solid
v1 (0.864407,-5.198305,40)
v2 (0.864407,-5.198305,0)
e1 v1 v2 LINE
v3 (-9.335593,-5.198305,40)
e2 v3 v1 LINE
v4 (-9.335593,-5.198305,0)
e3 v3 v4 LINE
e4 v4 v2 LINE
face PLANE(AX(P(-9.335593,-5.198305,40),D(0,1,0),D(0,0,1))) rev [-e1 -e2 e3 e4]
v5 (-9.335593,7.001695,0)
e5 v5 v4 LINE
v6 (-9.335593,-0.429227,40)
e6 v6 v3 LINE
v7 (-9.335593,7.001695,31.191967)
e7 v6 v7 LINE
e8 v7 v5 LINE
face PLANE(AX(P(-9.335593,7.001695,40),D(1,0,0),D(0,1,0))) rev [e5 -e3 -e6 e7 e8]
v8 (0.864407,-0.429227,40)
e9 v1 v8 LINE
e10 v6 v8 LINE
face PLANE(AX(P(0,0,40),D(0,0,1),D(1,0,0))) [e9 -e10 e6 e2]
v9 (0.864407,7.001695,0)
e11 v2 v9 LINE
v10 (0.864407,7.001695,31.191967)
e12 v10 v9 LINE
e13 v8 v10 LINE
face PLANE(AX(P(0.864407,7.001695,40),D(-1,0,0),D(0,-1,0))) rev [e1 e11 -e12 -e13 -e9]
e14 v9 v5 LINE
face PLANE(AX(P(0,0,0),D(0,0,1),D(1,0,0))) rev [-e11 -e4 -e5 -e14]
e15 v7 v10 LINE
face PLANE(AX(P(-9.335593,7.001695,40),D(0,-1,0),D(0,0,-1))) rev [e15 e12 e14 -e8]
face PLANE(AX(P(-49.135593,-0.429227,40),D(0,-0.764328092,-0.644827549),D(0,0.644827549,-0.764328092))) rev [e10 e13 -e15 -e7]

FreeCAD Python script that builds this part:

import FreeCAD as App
import Part
import Sketcher
Q = App.Units.Quantity

doc = App.newDocument("Part")
body = doc.addObject("PartDesign::Body", "Body")

sketch1 = body.newObject("Sketcher::SketchObject", "Sketch")
sketch1.AttachmentSupport = (doc.getObject("XY_Plane"), [""])
sketch1.MapMode = "FlatFace"
sketch1.addGeometry(Part.LineSegment(App.Vector(-9, 7, 0), App.Vector(-9, -5, 0)), False)
sketch1.addGeometry(Part.LineSegment(App.Vector(-9, -5, 0), App.Vector(1, -5, 0)), False)
sketch1.addGeometry(Part.LineSegment(App.Vector(1, -5, 0), App.Vector(1, 7, 0)), False)
sketch1.addGeometry(Part.LineSegment(App.Vector(1, 7, 0), App.Vector(-9, 7, 0)), False)
sketch1.addConstraint(Sketcher.Constraint("Coincident", 0, 2, 1, 1))
sketch1.addConstraint(Sketcher.Constraint("Coincident", 1, 2, 2, 1))
sketch1.addConstraint(Sketcher.Constraint("Coincident", 2, 2, 3, 1))
sketch1.addConstraint(Sketcher.Constraint("Coincident", 3, 2, 0, 1))
sketch1.addConstraint(Sketcher.Constraint("Vertical", 0))
sketch1.addConstraint(Sketcher.Constraint("Horizontal", 1))
sketch1.addConstraint(Sketcher.Constraint("Vertical", 2))
sketch1.addConstraint(Sketcher.Constraint("Horizontal", 3))
sketch1.addConstraint(Sketcher.Constraint("DistanceX", 1, 1, 1, 2, Q("10.2 mm")))
sketch1.addConstraint(Sketcher.Constraint("DistanceY", 0, 2, 0, 1, Q("12.2 mm")))
sketch1.addConstraint(Sketcher.Constraint("DistanceX", 0, 2, -1, 1, Q("9.335593 mm")))
sketch1.addConstraint(Sketcher.Constraint("DistanceY", 0, 2, -1, 1, Q("5.198305 mm")))
pad1 = body.newObject("PartDesign::Pad", "Pad")
pad1.Profile = sketch1
pad1.Length = 40

sketch2 = body.newObject("Sketcher::SketchObject", "Sketch001")
sketch2.AttachmentSupport = (doc.getObject("YZ_Plane"), [""])
sketch2.MapMode = "FlatFace"
sketch2.AttachmentOffset = App.Placement(App.Vector(0, 0, 0.864407), App.Rotation())
sketch2.addGeometry(Part.LineSegment(App.Vector(0, 40, 0), App.Vector(7, 31, 0)), False)
sketch2.addGeometry(Part.LineSegment(App.Vector(7, 31, 0), App.Vector(7, 40, 0)), False)
sketch2.addGeometry(Part.LineSegment(App.Vector(7, 40, 0), App.Vector(0, 40, 0)), False)
sketch2.addConstraint(Sketcher.Constraint("Coincident", 0, 2, 1, 1))
sketch2.addConstraint(Sketcher.Constraint("Coincident", 1, 2, 2, 1))
sketch2.addConstraint(Sketcher.Constraint("Coincident", 2, 2, 0, 1))
sketch2.addConstraint(Sketcher.Constraint("Vertical", 1))
sketch2.addConstraint(Sketcher.Constraint("Horizontal", 2))
sketch2.addConstraint(Sketcher.Constraint("DistanceY", -1, 1, 1, 2, Q("40 mm")))
sketch2.addConstraint(Sketcher.Constraint("Distance", 0, Q("11.523891 mm")))
sketch2.addConstraint(Sketcher.Constraint("DistanceX", 2, 2, 2, 1, Q("7.430922 mm")))
sketch2.addConstraint(Sketcher.Constraint("DistanceX", -1, 1, 0, 2, Q("7.001695 mm")))
pocket1 = body.newObject("PartDesign::Pocket", "Pocket")
pocket1.Profile = sketch2
pocket1.Length = 50

doc.recompute()
